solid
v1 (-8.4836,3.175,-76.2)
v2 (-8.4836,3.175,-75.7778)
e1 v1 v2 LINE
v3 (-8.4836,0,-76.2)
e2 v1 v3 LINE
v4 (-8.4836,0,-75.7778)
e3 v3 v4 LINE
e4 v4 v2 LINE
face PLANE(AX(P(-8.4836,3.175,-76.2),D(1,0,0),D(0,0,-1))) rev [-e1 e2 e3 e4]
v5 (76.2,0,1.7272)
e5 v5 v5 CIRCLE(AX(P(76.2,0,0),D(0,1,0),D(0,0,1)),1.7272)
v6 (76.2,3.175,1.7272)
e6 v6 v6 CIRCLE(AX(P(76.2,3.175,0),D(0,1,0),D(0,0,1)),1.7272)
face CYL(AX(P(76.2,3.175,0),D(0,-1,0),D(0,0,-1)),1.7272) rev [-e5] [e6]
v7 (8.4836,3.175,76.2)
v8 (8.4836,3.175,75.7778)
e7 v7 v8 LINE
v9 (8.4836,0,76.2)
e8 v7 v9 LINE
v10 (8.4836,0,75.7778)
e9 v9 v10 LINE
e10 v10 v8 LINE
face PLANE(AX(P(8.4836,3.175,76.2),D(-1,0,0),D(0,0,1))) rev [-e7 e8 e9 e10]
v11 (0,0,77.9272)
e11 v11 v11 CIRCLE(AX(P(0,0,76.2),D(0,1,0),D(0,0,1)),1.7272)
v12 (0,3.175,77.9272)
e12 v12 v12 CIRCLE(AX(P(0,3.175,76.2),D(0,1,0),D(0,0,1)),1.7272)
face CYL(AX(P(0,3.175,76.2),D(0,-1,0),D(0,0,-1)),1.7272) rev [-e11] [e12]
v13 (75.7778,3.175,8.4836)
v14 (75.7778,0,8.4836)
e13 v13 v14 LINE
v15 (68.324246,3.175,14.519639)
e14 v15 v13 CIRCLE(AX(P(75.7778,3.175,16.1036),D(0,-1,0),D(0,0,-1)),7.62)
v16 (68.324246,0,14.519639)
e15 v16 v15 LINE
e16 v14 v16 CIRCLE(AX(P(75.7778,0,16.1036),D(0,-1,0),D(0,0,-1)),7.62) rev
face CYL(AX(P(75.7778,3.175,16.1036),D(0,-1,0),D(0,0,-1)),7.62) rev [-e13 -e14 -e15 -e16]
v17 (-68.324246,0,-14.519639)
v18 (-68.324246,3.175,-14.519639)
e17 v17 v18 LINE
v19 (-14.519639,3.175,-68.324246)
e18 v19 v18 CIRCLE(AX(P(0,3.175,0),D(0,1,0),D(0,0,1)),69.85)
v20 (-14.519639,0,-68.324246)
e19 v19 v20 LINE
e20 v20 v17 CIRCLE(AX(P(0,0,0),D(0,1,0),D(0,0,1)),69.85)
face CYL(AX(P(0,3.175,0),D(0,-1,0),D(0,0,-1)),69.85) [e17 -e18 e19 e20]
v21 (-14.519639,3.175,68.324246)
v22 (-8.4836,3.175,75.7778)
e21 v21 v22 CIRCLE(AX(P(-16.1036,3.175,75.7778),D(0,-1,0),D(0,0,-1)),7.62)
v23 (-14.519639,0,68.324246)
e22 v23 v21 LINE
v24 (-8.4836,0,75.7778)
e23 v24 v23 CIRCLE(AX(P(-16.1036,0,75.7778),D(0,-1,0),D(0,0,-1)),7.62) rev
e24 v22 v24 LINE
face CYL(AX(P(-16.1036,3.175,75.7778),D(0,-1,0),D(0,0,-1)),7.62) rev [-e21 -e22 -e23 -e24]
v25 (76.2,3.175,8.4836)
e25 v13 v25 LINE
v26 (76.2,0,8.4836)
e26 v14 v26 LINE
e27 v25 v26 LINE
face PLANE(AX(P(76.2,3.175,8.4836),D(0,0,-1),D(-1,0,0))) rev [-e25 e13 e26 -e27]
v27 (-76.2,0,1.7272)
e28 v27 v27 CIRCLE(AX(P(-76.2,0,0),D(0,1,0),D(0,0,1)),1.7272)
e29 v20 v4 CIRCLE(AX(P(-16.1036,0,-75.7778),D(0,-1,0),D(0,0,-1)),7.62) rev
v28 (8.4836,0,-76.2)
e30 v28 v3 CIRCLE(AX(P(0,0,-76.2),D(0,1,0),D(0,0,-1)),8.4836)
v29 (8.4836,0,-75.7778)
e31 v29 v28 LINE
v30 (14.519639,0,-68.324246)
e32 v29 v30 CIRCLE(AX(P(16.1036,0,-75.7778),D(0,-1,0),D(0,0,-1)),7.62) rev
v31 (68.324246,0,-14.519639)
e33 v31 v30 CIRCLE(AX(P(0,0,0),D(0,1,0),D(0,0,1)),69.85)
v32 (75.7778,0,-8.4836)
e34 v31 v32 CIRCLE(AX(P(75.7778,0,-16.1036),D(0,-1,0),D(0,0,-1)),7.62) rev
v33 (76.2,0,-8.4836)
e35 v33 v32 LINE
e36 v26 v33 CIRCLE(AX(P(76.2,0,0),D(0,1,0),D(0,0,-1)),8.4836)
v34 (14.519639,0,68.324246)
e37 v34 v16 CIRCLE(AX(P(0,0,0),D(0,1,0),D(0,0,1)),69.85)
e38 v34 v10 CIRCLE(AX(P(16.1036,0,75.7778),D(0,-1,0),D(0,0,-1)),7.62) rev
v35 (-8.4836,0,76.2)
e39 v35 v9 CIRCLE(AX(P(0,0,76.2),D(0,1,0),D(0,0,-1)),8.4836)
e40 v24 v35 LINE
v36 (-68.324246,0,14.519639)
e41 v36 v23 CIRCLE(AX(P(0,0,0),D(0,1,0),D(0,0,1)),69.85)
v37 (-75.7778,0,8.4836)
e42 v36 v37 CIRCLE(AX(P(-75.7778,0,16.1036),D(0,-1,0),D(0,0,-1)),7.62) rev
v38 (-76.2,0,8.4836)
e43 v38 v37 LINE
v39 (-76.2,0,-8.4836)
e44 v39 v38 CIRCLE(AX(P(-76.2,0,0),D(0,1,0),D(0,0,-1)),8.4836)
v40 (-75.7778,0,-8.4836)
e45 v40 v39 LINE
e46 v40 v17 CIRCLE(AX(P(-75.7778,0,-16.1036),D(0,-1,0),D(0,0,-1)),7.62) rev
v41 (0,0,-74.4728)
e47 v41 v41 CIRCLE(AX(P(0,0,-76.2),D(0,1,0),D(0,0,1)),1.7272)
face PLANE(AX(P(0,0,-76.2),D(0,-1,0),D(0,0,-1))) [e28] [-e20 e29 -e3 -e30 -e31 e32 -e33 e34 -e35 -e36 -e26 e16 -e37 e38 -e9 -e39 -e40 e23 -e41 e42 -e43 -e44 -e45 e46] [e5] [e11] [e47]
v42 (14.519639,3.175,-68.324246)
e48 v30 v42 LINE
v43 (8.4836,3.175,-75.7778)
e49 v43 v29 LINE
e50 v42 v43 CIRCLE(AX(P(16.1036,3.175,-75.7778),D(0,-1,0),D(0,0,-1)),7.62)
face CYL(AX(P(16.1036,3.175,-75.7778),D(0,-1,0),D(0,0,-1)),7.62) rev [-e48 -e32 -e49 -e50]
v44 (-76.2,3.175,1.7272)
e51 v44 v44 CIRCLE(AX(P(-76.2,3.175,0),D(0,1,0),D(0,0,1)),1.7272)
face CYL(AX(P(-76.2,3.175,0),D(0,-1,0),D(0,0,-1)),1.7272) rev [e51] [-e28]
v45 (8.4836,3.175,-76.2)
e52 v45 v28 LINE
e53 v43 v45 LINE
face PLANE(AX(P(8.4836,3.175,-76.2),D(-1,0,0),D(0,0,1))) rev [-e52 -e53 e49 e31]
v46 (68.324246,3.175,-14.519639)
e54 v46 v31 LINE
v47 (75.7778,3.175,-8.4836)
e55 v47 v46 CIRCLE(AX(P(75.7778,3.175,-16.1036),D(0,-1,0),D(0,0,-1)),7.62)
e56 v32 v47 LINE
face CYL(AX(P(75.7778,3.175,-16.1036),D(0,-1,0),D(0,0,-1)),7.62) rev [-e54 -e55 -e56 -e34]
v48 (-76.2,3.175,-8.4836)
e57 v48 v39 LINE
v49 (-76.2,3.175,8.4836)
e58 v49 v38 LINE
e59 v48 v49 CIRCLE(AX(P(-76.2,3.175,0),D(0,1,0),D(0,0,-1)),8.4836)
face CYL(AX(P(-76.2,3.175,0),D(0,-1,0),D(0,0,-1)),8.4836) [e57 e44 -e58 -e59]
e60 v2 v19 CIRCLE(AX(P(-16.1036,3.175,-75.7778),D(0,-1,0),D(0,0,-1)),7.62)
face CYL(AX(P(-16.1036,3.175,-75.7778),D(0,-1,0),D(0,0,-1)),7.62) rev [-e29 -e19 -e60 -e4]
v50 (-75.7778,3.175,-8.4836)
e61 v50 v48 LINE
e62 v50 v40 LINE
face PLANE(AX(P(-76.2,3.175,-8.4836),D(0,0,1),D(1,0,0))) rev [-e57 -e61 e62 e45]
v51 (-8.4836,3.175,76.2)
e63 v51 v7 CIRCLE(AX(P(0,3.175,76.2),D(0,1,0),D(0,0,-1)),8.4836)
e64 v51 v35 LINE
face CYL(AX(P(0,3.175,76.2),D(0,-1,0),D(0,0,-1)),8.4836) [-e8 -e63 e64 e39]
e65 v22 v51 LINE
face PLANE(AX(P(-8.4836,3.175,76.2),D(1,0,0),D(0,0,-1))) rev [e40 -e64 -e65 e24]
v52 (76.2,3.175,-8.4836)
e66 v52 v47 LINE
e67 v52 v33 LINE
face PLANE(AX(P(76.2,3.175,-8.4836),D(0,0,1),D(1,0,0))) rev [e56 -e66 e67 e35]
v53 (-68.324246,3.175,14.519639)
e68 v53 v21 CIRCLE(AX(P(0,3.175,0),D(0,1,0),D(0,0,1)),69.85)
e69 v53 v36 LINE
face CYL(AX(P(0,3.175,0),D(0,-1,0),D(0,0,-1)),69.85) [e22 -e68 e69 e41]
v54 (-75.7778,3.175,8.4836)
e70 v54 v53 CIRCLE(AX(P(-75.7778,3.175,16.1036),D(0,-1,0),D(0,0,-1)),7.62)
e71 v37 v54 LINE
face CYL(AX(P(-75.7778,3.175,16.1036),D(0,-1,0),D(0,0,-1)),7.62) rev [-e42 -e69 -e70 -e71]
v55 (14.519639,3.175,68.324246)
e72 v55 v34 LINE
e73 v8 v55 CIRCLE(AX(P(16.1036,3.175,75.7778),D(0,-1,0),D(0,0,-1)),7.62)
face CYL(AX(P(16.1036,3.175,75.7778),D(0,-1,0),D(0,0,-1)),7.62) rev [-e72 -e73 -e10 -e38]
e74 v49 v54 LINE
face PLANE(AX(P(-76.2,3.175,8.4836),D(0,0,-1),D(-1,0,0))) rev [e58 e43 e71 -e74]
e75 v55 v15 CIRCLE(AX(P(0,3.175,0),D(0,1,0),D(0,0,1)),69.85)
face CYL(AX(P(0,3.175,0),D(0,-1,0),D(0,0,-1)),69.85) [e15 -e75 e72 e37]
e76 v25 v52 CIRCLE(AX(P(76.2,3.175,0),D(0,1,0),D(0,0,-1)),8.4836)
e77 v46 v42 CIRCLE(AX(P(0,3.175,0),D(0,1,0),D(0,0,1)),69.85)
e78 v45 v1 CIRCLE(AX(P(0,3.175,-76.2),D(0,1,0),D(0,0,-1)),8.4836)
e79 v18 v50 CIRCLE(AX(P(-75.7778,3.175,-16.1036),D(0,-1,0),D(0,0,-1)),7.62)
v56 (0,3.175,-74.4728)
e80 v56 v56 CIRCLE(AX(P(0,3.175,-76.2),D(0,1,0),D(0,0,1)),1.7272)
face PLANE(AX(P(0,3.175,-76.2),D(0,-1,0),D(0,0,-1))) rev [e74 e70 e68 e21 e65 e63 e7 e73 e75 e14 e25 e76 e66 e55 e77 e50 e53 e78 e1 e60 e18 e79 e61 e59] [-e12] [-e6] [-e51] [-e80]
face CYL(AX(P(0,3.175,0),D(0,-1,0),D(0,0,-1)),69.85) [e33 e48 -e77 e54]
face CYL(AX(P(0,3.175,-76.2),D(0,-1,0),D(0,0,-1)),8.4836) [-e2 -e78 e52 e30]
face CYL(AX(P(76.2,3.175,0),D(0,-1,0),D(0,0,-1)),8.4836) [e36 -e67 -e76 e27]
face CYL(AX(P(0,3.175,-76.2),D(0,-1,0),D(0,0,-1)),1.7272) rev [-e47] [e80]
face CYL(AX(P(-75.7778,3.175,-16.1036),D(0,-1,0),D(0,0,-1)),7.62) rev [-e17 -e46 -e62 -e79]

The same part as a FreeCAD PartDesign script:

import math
import FreeCAD as App
import Part
import Sketcher
Q = App.Units.Quantity


def edges_at(feature, points):
    """Names of the edges that pass closest to the given points."""
    edges = feature.Shape.Edges
    near = lambda p: min(range(len(edges)), key=lambda i: edges[i].distToShape(Part.Vertex(*p))[0])
    return sorted({f"Edge{near(p) + 1}" for p in points})

doc = App.newDocument("Part")
body = doc.addObject("PartDesign::Body", "Body")

sketch1 = body.newObject("Sketcher::SketchObject", "Sketch")
sketch1.AttachmentSupport = (doc.getObject("XZ_Plane"), [""])
sketch1.MapMode = "FlatFace"
sketch1.addGeometry(Part.LineSegment(App.Vector(-8.4836, -76.2, 0), App.Vector(-8.4836, -69.3329, 0)), False)
sketch1.addGeometry(Part.ArcOfCircle(Part.Circle(App.Vector(0, 0, 0), App.Vector(0, 0, 1), 69.85), math.radians(-173.023944), math.radians(-96.976056)), False)
sketch1.addGeometry(Part.LineSegment(App.Vector(-69.3329, -8.4836, 0), App.Vector(-76.2, -8.4836, 0)), False)
sketch1.addGeometry(Part.ArcOfCircle(Part.Circle(App.Vector(-76.2, 0, 0), App.Vector(0, 0, 1), 8.4836), math.radians(90), math.radians(270)), False)
sketch1.addGeometry(Part.LineSegment(App.Vector(-76.2, 8.4836, 0), App.Vector(-69.3329, 8.4836, 0)), False)
sketch1.addGeometry(Part.ArcOfCircle(Part.Circle(App.Vector(0, 0, 0), App.Vector(0, 0, 1), 69.85), math.radians(96.976056), math.radians(173.023944)), False)
sketch1.addGeometry(Part.LineSegment(App.Vector(-8.4836, 69.3329, 0), App.Vector(-8.4836, 76.2, 0)), False)
sketch1.addGeometry(Part.ArcOfCircle(Part.Circle(App.Vector(0, 76.2, 0), App.Vector(0, 0, 1), 8.4836), math.radians(0), math.radians(180)), False)
sketch1.addGeometry(Part.LineSegment(App.Vector(8.4836, 76.2, 0), App.Vector(8.4836, 69.3329, 0)), False)
sketch1.addGeometry(Part.ArcOfCircle(Part.Circle(App.Vector(0, 0, 0), App.Vector(0, 0, 1), 69.85), math.radians(6.976056), math.radians(83.023944)), False)
sketch1.addGeometry(Part.LineSegment(App.Vector(69.3329, 8.4836, 0), App.Vector(76.2, 8.4836, 0)), False)
sketch1.addGeometry(Part.ArcOfCircle(Part.Circle(App.Vector(76.2, 0, 0), App.Vector(0, 0, 1), 8.4836), math.radians(-90), math.radians(90)), False)
sketch1.addGeometry(Part.LineSegment(App.Vector(76.2, -8.4836, 0), App.Vector(69.3329, -8.4836, 0)), False)
sketch1.addGeometry(Part.ArcOfCircle(Part.Circle(App.Vector(0, 0, 0), App.Vector(0, 0, 1), 69.85), math.radians(-83.023944), math.radians(-6.976056)), False)
sketch1.addGeometry(Part.LineSegment(App.Vector(8.4836, -69.3329, 0), App.Vector(8.4836, -76.2, 0)), False)
sketch1.addGeometry(Part.ArcOfCircle(Part.Circle(App.Vector(0, -76.2, 0), App.Vector(0, 0, 1), 8.4836), math.radians(180), math.radians(360)), False)
sketch1.addGeometry(Part.Circle(App.Vector(0, 76.2, 0), App.Vector(0, 0, 1), 1.7272), False)
sketch1.addGeometry(Part.Circle(App.Vector(-76.2, 0, 0), App.Vector(0, 0, 1), 1.7272), False)
sketch1.addGeometry(Part.Circle(App.Vector(76.2, 0, 0), App.Vector(0, 0, 1), 1.7272), False)
sketch1.addGeometry(Part.Circle(App.Vector(0, -76.2, 0), App.Vector(0, 0, 1), 1.7272), False)
sketch1.addConstraint(Sketcher.Constraint("Coincident", 0, 2, 1, 2))
sketch1.addConstraint(Sketcher.Constraint("Coincident", 1, 1, 2, 1))
sketch1.addConstraint(Sketcher.Constraint("Tangent", 2, 2, 3, 2))
sketch1.addConstraint(Sketcher.Constraint("Tangent", 3, 1, 4, 1))
sketch1.addConstraint(Sketcher.Constraint("Coincident", 4, 2, 5, 2))
sketch1.addConstraint(Sketcher.Constraint("Coincident", 5, 1, 6, 1))
sketch1.addConstraint(Sketcher.Constraint("Tangent", 6, 2, 7, 2))
sketch1.addConstraint(Sketcher.Constraint("Tangent", 7, 1, 8, 1))
sketch1.addConstraint(Sketcher.Constraint("Coincident", 8, 2, 9, 2))
sketch1.addConstraint(Sketcher.Constraint("Coincident", 9, 1, 10, 1))
sketch1.addConstraint(Sketcher.Constraint("Tangent", 10, 2, 11, 2))
sketch1.addConstraint(Sketcher.Constraint("Tangent", 11, 1, 12, 1))
sketch1.addConstraint(Sketcher.Constraint("Coincident", 12, 2, 13, 2))
sketch1.addConstraint(Sketcher.Constraint("Coincident", 13, 1, 14, 1))
sketch1.addConstraint(Sketcher.Constraint("Tangent", 14, 2, 15, 2))
sketch1.addConstraint(Sketcher.Constraint("Tangent", 15, 1, 0, 1))
sketch1.addConstraint(Sketcher.Constraint("Vertical", 0))
sketch1.addConstraint(Sketcher.Constraint("Horizontal", 2))
sketch1.addConstraint(Sketcher.Constraint("Horizontal", 4))
sketch1.addConstraint(Sketcher.Constraint("Vertical", 6))
sketch1.addConstraint(Sketcher.Constraint("Vertical", 8))
sketch1.addConstraint(Sketcher.Constraint("Horizontal", 10))
sketch1.addConstraint(Sketcher.Constraint("Horizontal", 12))
sketch1.addConstraint(Sketcher.Constraint("Vertical", 14))
sketch1.addConstraint(Sketcher.Constraint("Coincident", 1, 3, -1, 1))
sketch1.addConstraint(Sketcher.Constraint("Coincident", 5, 3, -1, 1))
sketch1.addConstraint(Sketcher.Constraint("Coincident", 9, 3, -1, 1))
sketch1.addConstraint(Sketcher.Constraint("Coincident", 13, 3, -1, 1))
sketch1.addConstraint(Sketcher.Constraint("Coincident", 16, 3, 7, 3))
sketch1.addConstraint(Sketcher.Constraint("Coincident", 17, 3, 3, 3))
sketch1.addConstraint(Sketcher.Constraint("Coincident", 18, 3, 11, 3))
sketch1.addConstraint(Sketcher.Constraint("Coincident", 19, 3, 15, 3))
sketch1.addConstraint(Sketcher.Constraint("Equal", 1, 5))
sketch1.addConstraint(Sketcher.Constraint("Equal", 3, 7))
sketch1.addConstraint(Sketcher.Constraint("Equal", 5, 9))
sketch1.addConstraint(Sketcher.Constraint("Equal", 7, 11))
sketch1.addConstraint(Sketcher.Constraint("Equal", 9, 13))
sketch1.addConstraint(Sketcher.Constraint("Equal", 11, 15))
sketch1.addConstraint(Sketcher.Constraint("Equal", 16, 17))
sketch1.addConstraint(Sketcher.Constraint("Equal", 17, 18))
sketch1.addConstraint(Sketcher.Constraint("Equal", 18, 19))
sketch1.addConstraint(Sketcher.Constraint("Symmetric", 3, 3, 11, 3, -1, 1))
sketch1.addConstraint(Sketcher.Constraint("Symmetric", 7, 3, 15, 3, -1, 1))
sketch1.addConstraint(Sketcher.Constraint("PointOnObject", 3, 3, -1))
sketch1.addConstraint(Sketcher.Constraint("PointOnObject", 7, 3, -2))
sketch1.addConstraint(Sketcher.Constraint("Equal", 12, 0))
sketch1.addConstraint(Sketcher.Constraint("Radius", 1, Q("2.75 in")))
sketch1.addConstraint(Sketcher.Constraint("Diameter", 16, Q("0.136 in")))
sketch1.addConstraint(Sketcher.Constraint("DistanceX", 3, 3, -1, 1, Q("3 in")))
sketch1.addConstraint(Sketcher.Constraint("Radius", 3, Q("0.334 in")))
pad1 = body.newObject("PartDesign::Pad", "Pad")
pad1.Profile = sketch1
pad1.Length = Q("0.125 in")
pad1.Reversed = True
doc.recompute()

fillet = body.newObject("PartDesign::Fillet", "Fillet")
fillet.Base = (pad1, edges_at(pad1, [
    (8.484, 1.587, -69.333),
    (69.333, 1.587, -8.484),
    (69.333, 1.587, 8.484),
    (8.484, 1.587, 69.333),
    (-8.484, 1.587, 69.333),
    (-69.333, 1.587, 8.484),
    (-69.333, 1.587, -8.484),
    (-8.484, 1.587, -69.333),
]))
fillet.Radius = Q("0.3 in")

doc.recompute()
